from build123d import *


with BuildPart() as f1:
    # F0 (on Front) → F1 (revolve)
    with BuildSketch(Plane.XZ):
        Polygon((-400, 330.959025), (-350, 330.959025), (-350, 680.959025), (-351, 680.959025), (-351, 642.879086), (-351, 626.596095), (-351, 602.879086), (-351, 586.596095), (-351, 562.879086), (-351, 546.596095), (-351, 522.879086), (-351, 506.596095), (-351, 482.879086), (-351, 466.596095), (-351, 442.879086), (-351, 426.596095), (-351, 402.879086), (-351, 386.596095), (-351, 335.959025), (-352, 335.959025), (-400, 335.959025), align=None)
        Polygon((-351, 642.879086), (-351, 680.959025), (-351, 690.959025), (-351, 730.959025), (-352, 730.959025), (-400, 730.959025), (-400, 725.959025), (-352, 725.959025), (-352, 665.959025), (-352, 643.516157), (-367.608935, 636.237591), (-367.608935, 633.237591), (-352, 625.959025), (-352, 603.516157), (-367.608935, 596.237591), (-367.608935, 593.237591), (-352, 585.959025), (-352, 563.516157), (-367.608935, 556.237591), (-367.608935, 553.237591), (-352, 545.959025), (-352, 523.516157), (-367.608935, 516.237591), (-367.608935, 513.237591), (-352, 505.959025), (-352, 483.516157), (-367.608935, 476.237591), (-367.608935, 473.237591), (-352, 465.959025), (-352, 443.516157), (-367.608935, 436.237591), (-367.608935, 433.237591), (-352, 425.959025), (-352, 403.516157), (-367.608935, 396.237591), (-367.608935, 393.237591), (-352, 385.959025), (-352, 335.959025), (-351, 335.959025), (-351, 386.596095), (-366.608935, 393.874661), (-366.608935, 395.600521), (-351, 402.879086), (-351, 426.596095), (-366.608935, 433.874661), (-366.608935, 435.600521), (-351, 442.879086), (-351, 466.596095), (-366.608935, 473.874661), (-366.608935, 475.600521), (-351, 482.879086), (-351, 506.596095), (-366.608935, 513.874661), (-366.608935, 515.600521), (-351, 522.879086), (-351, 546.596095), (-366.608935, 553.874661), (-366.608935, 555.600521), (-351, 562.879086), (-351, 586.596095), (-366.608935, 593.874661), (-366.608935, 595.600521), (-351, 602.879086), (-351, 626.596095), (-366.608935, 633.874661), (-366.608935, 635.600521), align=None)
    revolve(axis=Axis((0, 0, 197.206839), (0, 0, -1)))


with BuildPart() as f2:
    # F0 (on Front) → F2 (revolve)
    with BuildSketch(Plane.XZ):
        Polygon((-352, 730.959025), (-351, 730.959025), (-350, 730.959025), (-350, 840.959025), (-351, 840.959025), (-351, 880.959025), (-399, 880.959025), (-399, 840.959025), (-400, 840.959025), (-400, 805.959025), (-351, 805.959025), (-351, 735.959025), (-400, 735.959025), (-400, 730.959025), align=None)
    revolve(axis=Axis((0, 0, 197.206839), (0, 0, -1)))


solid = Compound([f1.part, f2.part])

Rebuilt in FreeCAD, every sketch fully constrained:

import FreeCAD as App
import Part
import Sketcher
from FreeCAD import Vector
Q = App.Units.Quantity


def add_polygon(sketch, points):
    """Adds a closed chain of lines whose ends are joined by coincident constraints."""
    first, n = sketch.GeometryCount, len(points)
    for a, b in zip(points, points[1:] + points[:1]):
        sketch.addGeometry(Part.LineSegment(App.Vector(*a, 0), App.Vector(*b, 0)), False)
    for i in range(n):
        sketch.addConstraint(Sketcher.Constraint("Coincident", first + i, 2, first + (i + 1) % n, 1))

doc = App.newDocument("Part")
body = doc.addObject("PartDesign::Body", "Body")

# Sketch on XZ plane
sketch1 = doc.addObject("Sketcher::SketchObject", "Sketch")
body.addObject(sketch1)
sketch1.AttachmentSupport = (doc.XZ_Plane, [""])
sketch1.MapMode = "FlatFace"
add_polygon(sketch1, [(-400, 331), (-350, 331), (-350, 681), (-351, 681), (-351, 731), (-400, 731), (-400, 726), (-352, 726), (-352, 643.5), (-367.6, 636.2), (-367.6, 633.2), (-352, 626), (-352, 603.5), (-367.6, 596.2), (-367.6, 593.2), (-352, 586), (-352, 563.5), (-367.6, 556.2), (-367.6, 553.2), (-352, 546), (-352, 523.5), (-367.6, 516.2), (-367.6, 513.2), (-352, 506), (-352, 483.5), (-367.6, 476.2), (-367.6, 473.2), (-352, 466), (-352, 443.5), (-367.6, 436.2), (-367.6, 433.2), (-352, 426), (-352, 403.5), (-367.6, 396.2), (-367.6, 393.2), (-352, 386), (-352, 336), (-400, 336)])  # lines 0-37
add_polygon(sketch1, [(-351, 642.9), (-351, 626.6), (-366.6, 633.9), (-366.6, 635.6)])  # lines 38-41
add_polygon(sketch1, [(-351, 602.9), (-351, 586.6), (-366.6, 593.9), (-366.6, 595.6)])  # lines 42-45
add_polygon(sketch1, [(-351, 562.9), (-351, 546.6), (-366.6, 553.9), (-366.6, 555.6)])  # lines 46-49
add_polygon(sketch1, [(-351, 522.9), (-351, 506.6), (-366.6, 513.9), (-366.6, 515.6)])  # lines 50-53
add_polygon(sketch1, [(-351, 482.9), (-351, 466.6), (-366.6, 473.9), (-366.6, 475.6)])  # lines 54-57
add_polygon(sketch1, [(-351, 442.9), (-351, 426.6), (-366.6, 433.9), (-366.6, 435.6)])  # lines 58-61
add_polygon(sketch1, [(-351, 402.9), (-351, 386.6), (-366.6, 393.9), (-366.6, 395.6)])  # lines 62-65
sketch1.addConstraint([
    Sketcher.Constraint("Horizontal", 0),
    Sketcher.Constraint("Vertical", 1),
    Sketcher.Constraint("Horizontal", 2),
    Sketcher.Constraint("Vertical", 3),
    Sketcher.Constraint("Horizontal", 4),
    Sketcher.Constraint("Vertical", 5),
    Sketcher.Constraint("Horizontal", 6),
    Sketcher.Constraint("Vertical", 7),
    Sketcher.Constraint("Vertical", 9),
    Sketcher.Constraint("Vertical", 11),
    Sketcher.Constraint("Vertical", 13),
    Sketcher.Constraint("Vertical", 15),
    Sketcher.Constraint("Vertical", 17),
    Sketcher.Constraint("Vertical", 19),
    Sketcher.Constraint("Vertical", 21),
    Sketcher.Constraint("Vertical", 23),
    Sketcher.Constraint("Vertical", 25),
    Sketcher.Constraint("Vertical", 27),
    Sketcher.Constraint("Vertical", 29),
    Sketcher.Constraint("Vertical", 31),
    Sketcher.Constraint("Vertical", 33),
    Sketcher.Constraint("Vertical", 35),
    Sketcher.Constraint("Horizontal", 36),
    Sketcher.Constraint("Vertical", 37),
    Sketcher.Constraint("Vertical", 38),
    Sketcher.Constraint("Vertical", 40),
    Sketcher.Constraint("Vertical", 42),
    Sketcher.Constraint("Vertical", 44),
    Sketcher.Constraint("Vertical", 46),
    Sketcher.Constraint("Vertical", 48),
    Sketcher.Constraint("Vertical", 50),
    Sketcher.Constraint("Vertical", 52),
    Sketcher.Constraint("Vertical", 54),
    Sketcher.Constraint("Vertical", 56),
    Sketcher.Constraint("Vertical", 58),
    Sketcher.Constraint("Vertical", 60),
    Sketcher.Constraint("Vertical", 62),
    Sketcher.Constraint("Vertical", 64),
    Sketcher.Constraint("Parallel", 8, 12),
    Sketcher.Constraint("Parallel", 10, 14),
    Sketcher.Constraint("Parallel", 12, 16),
    Sketcher.Constraint("Parallel", 14, 18),
    Sketcher.Constraint("Parallel", 16, 20),
    Sketcher.Constraint("Parallel", 18, 22),
    Sketcher.Constraint("Parallel", 20, 24),
    Sketcher.Constraint("Parallel", 22, 26),
    Sketcher.Constraint("Parallel", 24, 28),
    Sketcher.Constraint("Parallel", 26, 30),
    Sketcher.Constraint("Parallel", 28, 32),
    Sketcher.Constraint("Parallel", 30, 34),
    Sketcher.Constraint("Parallel", 34, 39),
    Sketcher.Constraint("Parallel", 32, 41),
    Sketcher.Constraint("Parallel", 39, 43),
    Sketcher.Constraint("Parallel", 41, 45),
    Sketcher.Constraint("Parallel", 43, 47),
    Sketcher.Constraint("Parallel", 45, 49),
    Sketcher.Constraint("Parallel", 47, 51),
    Sketcher.Constraint("Parallel", 49, 53),
    Sketcher.Constraint("Parallel", 51, 55),
    Sketcher.Constraint("Parallel", 53, 57),
    Sketcher.Constraint("Parallel", 55, 59),
    Sketcher.Constraint("Parallel", 57, 61),
    Sketcher.Constraint("Parallel", 59, 63),
    Sketcher.Constraint("Parallel", 61, 65),
    Sketcher.Constraint("Vertical", 7, 2, 10, 2),
    Sketcher.Constraint("Vertical", 9, 2, 12, 2),
    Sketcher.Constraint("Vertical", 11, 2, 14, 2),
    Sketcher.Constraint("Vertical", 13, 2, 16, 2),
    Sketcher.Constraint("Vertical", 15, 2, 18, 2),
    Sketcher.Constraint("Vertical", 17, 2, 20, 2),
    Sketcher.Constraint("Vertical", 19, 2, 22, 2),
    Sketcher.Constraint("Vertical", 21, 2, 24, 2),
    Sketcher.Constraint("Vertical", 23, 2, 26, 2),
    Sketcher.Constraint("Vertical", 25, 2, 28, 2),
    Sketcher.Constraint("Vertical", 27, 2, 30, 2),
    Sketcher.Constraint("Vertical", 29, 2, 32, 2),
    Sketcher.Constraint("Vertical", 31, 2, 34, 2),
    Sketcher.Constraint("Vertical", 5, 2, 36, 2),
    Sketcher.Constraint("Vertical", 3, 2, 38, 2),
    Sketcher.Constraint("Vertical", 41, 2, 42, 2),
    Sketcher.Constraint("Vertical", 40, 2, 43, 2),
    Sketcher.Constraint("Vertical", 45, 2, 46, 2),
    Sketcher.Constraint("Vertical", 44, 2, 47, 2),
    Sketcher.Constraint("Vertical", 49, 2, 50, 2),
    Sketcher.Constraint("Vertical", 48, 2, 51, 2),
    Sketcher.Constraint("Vertical", 53, 2, 54, 2),
    Sketcher.Constraint("Vertical", 52, 2, 55, 2),
    Sketcher.Constraint("Vertical", 57, 2, 58, 2),
    Sketcher.Constraint("Vertical", 56, 2, 59, 2),
    Sketcher.Constraint("Vertical", 61, 2, 62, 2),
    Sketcher.Constraint("Vertical", 60, 2, 63, 2),
    Sketcher.Constraint("Equal", 0, 3),
    Sketcher.Constraint("Equal", 9, 13),
    Sketcher.Constraint("Equal", 11, 15),
    Sketcher.Constraint("Equal", 13, 17),
    Sketcher.Constraint("Equal", 15, 19),
    Sketcher.Constraint("Equal", 17, 21),
    Sketcher.Constraint("Equal", 19, 23),
    Sketcher.Constraint("Equal", 21, 25),
    Sketcher.Constraint("Equal", 23, 27),
    Sketcher.Constraint("Equal", 25, 29),
    Sketcher.Constraint("Equal", 27, 31),
    Sketcher.Constraint("Equal", 29, 33),
    Sketcher.Constraint("Equal", 3, 35),
    Sketcher.Constraint("Equal", 5, 37),
    Sketcher.Constraint("Equal", 38, 42),
    Sketcher.Constraint("Equal", 42, 46),
    Sketcher.Constraint("Equal", 46, 50),
    Sketcher.Constraint("Equal", 50, 54),
    Sketcher.Constraint("Equal", 54, 58),
    Sketcher.Constraint("Equal", 58, 62),
    Sketcher.Constraint("Equal", 8, 10),
    Sketcher.Constraint("Equal", 34, 39),
    Sketcher.Constraint("DistanceX", 0, 1, 0, 2, 50.0),
    Sketcher.Constraint("DistanceX", 2, 2, 2, 1, 1.0),
    Sketcher.Constraint("DistanceX", 6, 1, 6, 2, 48.0),
    Sketcher.Constraint("DistanceY", 1, 1, 1, 2, 350.0),
    Sketcher.Constraint("DistanceY", 5, 2, 5, 1, 5.0),
    Sketcher.Constraint("DistanceY", 9, 2, 9, 1, 3.0),
    Sketcher.Constraint("Angle", 8, Q("-155 deg")),
    Sketcher.Constraint("DistanceX", 0, 2, -1, 1, 350.0),
    Sketcher.Constraint("DistanceY", 38, 2, 38, 1, 16.282991),
    Sketcher.Constraint("DistanceY", 40, 1, 40, 2, 1.72586),
    Sketcher.Constraint("DistanceY", 7, 2, 7, 1, 82.442868),
    Sketcher.Constraint("DistanceY", -1, 1, 8, 2, 636.237591),
    Sketcher.Constraint("DistanceY", -1, 1, 39, 2, 633.874661),
    Sketcher.Constraint("DistanceY", -1, 1, 43, 2, 593.874661),
    Sketcher.Constraint("DistanceY", -1, 1, 47, 2, 553.874661),
    Sketcher.Constraint("DistanceY", -1, 1, 51, 2, 513.874661),
    Sketcher.Constraint("DistanceY", -1, 1, 55, 2, 473.874661),
    Sketcher.Constraint("DistanceY", -1, 1, 59, 2, 433.874661),
    Sketcher.Constraint("DistanceY", -1, 1, 63, 2, 393.874661),
])
revolution = doc.addObject("PartDesign::Revolution", "Revolution")
body.addObject(revolution)
revolution.Profile = sketch1
revolution.ReferenceAxis = (sketch1, ["V_Axis"])
revolution.Angle = 360
body2 = doc.addObject("PartDesign::Body", "Body001")

# Sketch on XZ plane
sketch2 = doc.addObject("Sketcher::SketchObject", "Sketch001")
body2.addObject(sketch2)
sketch2.AttachmentSupport = (doc.getObject("XZ_Plane001"), [""])
sketch2.MapMode = "FlatFace"
add_polygon(sketch2, [(-350, 731), (-350, 841), (-351, 841), (-351, 881), (-399, 881), (-399, 841), (-400, 841), (-400, 806), (-351, 806), (-351, 736), (-400, 736), (-400, 731)])  # lines 0-11
sketch2.addConstraint([
    Sketcher.Constraint("Vertical", 0),
    Sketcher.Constraint("Horizontal", 1),
    Sketcher.Constraint("Vertical", 2),
    Sketcher.Constraint("Horizontal", 3),
    Sketcher.Constraint("Vertical", 4),
    Sketcher.Constraint("Horizontal", 5),
    Sketcher.Constraint("Vertical", 6),
    Sketcher.Constraint("Horizontal", 7),
    Sketcher.Constraint("Vertical", 8),
    Sketcher.Constraint("Horizontal", 9),
    Sketcher.Constraint("Vertical", 10),
    Sketcher.Constraint("Horizontal", 11),
    Sketcher.Constraint("Horizontal", 1, 2, 4, 2),
    Sketcher.Constraint("Vertical", 2, 2, 7, 2),
    Sketcher.Constraint("Vertical", 6, 2, 9, 2),
    Sketcher.Constraint("Equal", 1, 5),
    Sketcher.Constraint("DistanceX", 1, 2, 1, 1, 1.0),
    Sketcher.Constraint("DistanceX", 3, 2, 3, 1, 48.0),
    Sketcher.Constraint("DistanceY", 0, 1, 0, 2, 110.0),
    Sketcher.Constraint("DistanceY", 2, 1, 2, 2, 40.0),
    Sketcher.Constraint("DistanceY", 6, 2, 6, 1, 35.0),
    Sketcher.Constraint("DistanceY", 8, 2, 8, 1, 70.0),
    Sketcher.Constraint("DistanceX", 0, 2, -1, 1, 350.0),
    Sketcher.Constraint("DistanceY", -1, 1, 0, 2, 840.959025),
])
revolution2 = doc.addObject("PartDesign::Revolution", "Revolution001")
body2.addObject(revolution2)
revolution2.Profile = sketch2
revolution2.ReferenceAxis = (sketch2, ["V_Axis"])
revolution2.Angle = 360

doc.recompute()
